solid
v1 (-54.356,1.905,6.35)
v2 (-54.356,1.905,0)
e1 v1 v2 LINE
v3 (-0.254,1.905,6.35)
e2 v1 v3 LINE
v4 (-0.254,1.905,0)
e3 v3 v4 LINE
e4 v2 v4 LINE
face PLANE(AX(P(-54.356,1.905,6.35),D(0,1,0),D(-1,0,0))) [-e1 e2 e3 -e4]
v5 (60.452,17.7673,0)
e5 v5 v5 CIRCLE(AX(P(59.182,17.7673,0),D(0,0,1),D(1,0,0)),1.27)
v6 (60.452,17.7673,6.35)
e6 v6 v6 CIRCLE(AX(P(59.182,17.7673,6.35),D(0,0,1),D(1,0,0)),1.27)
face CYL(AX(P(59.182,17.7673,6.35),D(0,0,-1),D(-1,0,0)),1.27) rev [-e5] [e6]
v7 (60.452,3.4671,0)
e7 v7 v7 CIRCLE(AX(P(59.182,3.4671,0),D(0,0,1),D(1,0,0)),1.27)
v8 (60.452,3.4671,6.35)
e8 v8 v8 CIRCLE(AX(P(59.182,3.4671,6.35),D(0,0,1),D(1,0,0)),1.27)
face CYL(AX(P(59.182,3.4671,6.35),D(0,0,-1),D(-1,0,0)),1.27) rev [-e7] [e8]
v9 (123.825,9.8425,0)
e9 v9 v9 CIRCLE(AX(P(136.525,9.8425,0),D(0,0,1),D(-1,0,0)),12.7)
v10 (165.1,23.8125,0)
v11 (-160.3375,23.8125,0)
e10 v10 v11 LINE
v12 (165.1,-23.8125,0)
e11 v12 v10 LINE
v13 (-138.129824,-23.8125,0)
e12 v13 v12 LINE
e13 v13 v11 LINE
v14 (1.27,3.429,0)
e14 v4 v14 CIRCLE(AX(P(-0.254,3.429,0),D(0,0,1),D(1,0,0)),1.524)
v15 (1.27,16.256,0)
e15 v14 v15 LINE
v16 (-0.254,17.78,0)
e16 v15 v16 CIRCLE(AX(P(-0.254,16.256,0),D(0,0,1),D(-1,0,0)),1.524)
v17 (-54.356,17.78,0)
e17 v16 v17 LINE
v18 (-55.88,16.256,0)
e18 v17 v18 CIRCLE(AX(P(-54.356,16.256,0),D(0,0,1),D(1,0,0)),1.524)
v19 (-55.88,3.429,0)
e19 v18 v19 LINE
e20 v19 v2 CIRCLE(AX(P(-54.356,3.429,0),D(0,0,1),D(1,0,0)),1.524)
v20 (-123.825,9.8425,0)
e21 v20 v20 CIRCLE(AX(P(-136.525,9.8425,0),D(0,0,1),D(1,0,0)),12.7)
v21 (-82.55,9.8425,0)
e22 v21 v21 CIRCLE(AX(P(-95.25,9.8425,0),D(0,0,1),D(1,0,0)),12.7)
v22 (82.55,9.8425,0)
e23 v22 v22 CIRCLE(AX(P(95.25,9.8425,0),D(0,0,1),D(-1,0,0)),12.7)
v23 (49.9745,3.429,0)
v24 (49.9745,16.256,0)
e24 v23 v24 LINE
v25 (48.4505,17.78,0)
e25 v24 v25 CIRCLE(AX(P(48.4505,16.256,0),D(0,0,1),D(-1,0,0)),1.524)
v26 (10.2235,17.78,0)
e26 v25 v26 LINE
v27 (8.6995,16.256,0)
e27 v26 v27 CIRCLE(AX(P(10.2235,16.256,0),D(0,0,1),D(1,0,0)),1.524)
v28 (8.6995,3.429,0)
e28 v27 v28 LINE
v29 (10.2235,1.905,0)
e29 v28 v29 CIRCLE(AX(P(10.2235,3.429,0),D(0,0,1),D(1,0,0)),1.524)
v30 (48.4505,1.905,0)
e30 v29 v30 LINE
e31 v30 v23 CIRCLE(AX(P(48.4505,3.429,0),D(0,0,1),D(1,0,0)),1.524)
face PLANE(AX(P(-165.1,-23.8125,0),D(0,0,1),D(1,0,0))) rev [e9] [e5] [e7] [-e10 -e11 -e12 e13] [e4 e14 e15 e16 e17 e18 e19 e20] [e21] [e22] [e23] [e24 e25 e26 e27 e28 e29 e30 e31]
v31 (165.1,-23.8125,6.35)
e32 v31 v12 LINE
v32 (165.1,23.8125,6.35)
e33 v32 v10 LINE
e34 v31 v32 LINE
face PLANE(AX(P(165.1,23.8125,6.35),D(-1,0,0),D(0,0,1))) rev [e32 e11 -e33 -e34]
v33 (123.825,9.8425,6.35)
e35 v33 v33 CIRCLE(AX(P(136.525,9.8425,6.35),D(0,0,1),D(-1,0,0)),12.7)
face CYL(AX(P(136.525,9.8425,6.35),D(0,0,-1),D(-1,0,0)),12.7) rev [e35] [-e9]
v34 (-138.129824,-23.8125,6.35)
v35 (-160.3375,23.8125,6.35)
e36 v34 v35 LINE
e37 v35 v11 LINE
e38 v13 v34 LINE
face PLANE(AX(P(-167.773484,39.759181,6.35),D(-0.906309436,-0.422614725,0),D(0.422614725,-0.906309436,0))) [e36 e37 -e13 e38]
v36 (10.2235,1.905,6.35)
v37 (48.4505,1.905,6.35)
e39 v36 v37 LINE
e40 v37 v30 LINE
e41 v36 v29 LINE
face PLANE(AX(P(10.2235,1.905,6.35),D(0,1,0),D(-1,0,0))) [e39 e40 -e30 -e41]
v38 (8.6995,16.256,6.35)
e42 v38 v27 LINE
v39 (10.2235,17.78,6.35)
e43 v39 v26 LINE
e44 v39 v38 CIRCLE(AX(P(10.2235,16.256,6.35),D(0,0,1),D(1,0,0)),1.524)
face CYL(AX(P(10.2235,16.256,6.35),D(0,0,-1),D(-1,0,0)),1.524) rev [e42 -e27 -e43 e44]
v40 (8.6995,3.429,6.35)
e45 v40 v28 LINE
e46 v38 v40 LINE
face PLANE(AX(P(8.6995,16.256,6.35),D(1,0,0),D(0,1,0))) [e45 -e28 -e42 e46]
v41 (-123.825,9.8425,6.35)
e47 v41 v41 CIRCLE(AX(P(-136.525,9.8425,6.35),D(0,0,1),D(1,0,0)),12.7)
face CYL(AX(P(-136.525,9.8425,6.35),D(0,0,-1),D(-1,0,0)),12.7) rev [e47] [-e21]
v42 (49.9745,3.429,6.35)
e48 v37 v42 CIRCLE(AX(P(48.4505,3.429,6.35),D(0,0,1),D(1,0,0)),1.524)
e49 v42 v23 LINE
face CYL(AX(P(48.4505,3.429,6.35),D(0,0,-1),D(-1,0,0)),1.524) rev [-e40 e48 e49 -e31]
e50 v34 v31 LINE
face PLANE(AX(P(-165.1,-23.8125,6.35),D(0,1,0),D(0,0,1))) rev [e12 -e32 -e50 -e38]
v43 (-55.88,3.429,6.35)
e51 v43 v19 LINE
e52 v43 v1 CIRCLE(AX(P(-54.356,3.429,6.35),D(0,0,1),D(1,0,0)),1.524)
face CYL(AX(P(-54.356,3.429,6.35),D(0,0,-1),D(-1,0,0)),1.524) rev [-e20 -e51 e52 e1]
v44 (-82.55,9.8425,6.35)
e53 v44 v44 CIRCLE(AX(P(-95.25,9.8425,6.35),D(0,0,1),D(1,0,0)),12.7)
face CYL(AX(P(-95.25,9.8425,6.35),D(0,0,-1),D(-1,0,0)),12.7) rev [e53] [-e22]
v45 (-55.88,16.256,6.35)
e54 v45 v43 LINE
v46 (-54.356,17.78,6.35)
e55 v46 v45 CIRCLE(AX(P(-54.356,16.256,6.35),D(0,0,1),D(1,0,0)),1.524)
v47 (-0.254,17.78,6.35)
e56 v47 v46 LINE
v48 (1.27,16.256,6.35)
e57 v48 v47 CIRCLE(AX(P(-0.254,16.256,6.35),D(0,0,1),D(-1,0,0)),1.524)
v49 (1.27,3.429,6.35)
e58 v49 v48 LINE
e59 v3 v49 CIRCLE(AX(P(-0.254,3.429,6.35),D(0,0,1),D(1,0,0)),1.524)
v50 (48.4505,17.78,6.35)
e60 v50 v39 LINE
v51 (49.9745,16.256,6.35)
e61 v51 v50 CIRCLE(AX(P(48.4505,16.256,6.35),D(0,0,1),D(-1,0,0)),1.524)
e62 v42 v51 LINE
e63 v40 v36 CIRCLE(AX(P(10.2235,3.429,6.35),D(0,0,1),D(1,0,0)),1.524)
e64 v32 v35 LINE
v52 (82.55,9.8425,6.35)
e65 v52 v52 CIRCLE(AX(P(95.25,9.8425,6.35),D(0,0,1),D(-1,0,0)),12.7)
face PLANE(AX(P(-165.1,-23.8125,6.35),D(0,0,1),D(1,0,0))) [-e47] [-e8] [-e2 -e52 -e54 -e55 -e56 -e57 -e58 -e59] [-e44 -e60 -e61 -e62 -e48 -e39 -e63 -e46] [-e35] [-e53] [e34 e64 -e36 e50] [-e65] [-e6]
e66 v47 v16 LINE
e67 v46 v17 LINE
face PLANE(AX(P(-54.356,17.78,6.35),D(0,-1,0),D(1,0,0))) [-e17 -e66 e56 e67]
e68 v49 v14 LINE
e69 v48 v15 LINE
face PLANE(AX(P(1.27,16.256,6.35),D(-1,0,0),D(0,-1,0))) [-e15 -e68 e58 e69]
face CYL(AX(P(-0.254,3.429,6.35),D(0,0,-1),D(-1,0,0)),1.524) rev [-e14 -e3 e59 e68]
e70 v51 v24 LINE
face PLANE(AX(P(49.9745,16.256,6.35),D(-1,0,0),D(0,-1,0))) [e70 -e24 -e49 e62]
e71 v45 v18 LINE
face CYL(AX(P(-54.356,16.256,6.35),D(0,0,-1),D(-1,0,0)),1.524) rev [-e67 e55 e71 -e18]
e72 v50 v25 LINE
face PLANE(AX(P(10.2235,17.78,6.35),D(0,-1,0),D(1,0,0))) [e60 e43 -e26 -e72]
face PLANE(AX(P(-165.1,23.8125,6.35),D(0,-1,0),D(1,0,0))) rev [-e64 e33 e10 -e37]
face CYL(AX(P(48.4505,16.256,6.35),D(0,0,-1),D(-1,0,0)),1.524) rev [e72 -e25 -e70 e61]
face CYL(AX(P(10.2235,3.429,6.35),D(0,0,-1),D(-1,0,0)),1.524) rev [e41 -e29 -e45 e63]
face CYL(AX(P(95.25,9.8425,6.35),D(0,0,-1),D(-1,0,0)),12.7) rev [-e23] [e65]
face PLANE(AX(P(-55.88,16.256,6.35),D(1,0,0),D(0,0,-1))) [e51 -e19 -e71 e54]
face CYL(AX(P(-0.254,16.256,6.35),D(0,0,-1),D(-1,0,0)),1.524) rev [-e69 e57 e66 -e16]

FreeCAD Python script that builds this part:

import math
import FreeCAD as App
import Part
import Sketcher

V = App.Vector
Q = App.Units.Quantity


def add_polygon(sketch, points):
    """Adds a closed chain of lines whose ends are joined by coincident constraints."""
    first, n = sketch.GeometryCount, len(points)
    for a, b in zip(points, points[1:] + points[:1]):
        sketch.addGeometry(Part.LineSegment(App.Vector(*a, 0), App.Vector(*b, 0)), False)
    for i in range(n):
        sketch.addConstraint(Sketcher.Constraint("Coincident", first + i, 2, first + (i + 1) % n, 1))

doc = App.newDocument("Part")
params = doc.addObject("Spreadsheet::Sheet", "Params")
for row, (alias, value) in enumerate([
    ("sketch1_diameter", "1 in"),
    ("sketch1_diameter2", "0.1 in"),
    ("sketch1_width", "13 in"),
    ("sketch1_radius", "0.06 in"),
    ("sketch1_width2", "2.13 in"),
    ("pad1_length", "0.25 in"),
], start=1):
    params.set(f"A{row}", alias)
    params.set(f"B{row}", "=" + value)
    params.setAlias(f"B{row}", alias)

body = doc.addObject("PartDesign::Body", "Body")

# Sketch on XY plane
sketch1 = body.newObject("Sketcher::SketchObject", "Sketch")
sketch1.AttachmentSupport = (doc.getObject("XY_Plane"), [""])
sketch1.MapMode = "FlatFace"
add_polygon(sketch1, [(-165.1, 23.8), (-165.1, -23.8), (165.1, -23.8), (165.1, 23.8)])  # lines 0-3
sketch1.addGeometry(Part.Circle(V(59.2, 3.5, 0), V(0, 0, 1), 1.3), False)  # 4
sketch1.addGeometry(Part.Circle(V(-136.5, 9.8, 0), V(0, 0, 1), 12.7), False)  # 5
sketch1.addGeometry(Part.Circle(V(-95.2, 9.8, 0), V(0, 0, 1), 12.7), False)  # 6
sketch1.addGeometry(Part.ArcOfCircle(Part.Circle(V(-54.4, 16.3, 0), V(0, 0, 1), 1.5), math.radians(90), math.radians(180)), False)  # 7
sketch1.addGeometry(Part.LineSegment(V(-54.4, 17.8, 0), V(-0.3, 17.8, 0)), False)  # 8
sketch1.addGeometry(Part.ArcOfCircle(Part.Circle(V(-0.3, 16.3, 0), V(0, 0, 1), 1.5), math.radians(0), math.radians(90)), False)  # 9
sketch1.addGeometry(Part.LineSegment(V(1.3, 16.3, 0), V(1.3, 3.4, 0)), False)  # 10
sketch1.addGeometry(Part.ArcOfCircle(Part.Circle(V(-0.3, 3.4, 0), V(0, 0, 1), 1.5), math.radians(-90), math.radians(0)), False)  # 11
sketch1.addGeometry(Part.LineSegment(V(-0.3, 1.9, 0), V(-54.4, 1.9, 0)), False)  # 12
sketch1.addGeometry(Part.ArcOfCircle(Part.Circle(V(-54.4, 3.4, 0), V(0, 0, 1), 1.5), math.radians(180), math.radians(270)), False)  # 13
sketch1.addGeometry(Part.LineSegment(V(-55.9, 3.4, 0), V(-55.9, 16.3, 0)), False)  # 14
sketch1.addGeometry(Part.ArcOfCircle(Part.Circle(V(10.2, 16.3, 0), V(0, 0, 1), 1.5), math.radians(90), math.radians(180)), False)  # 15
sketch1.addGeometry(Part.LineSegment(V(10.2, 17.8, 0), V(48.5, 17.8, 0)), False)  # 16
sketch1.addGeometry(Part.ArcOfCircle(Part.Circle(V(48.5, 16.3, 0), V(0, 0, 1), 1.5), math.radians(0), math.radians(90)), False)  # 17
sketch1.addGeometry(Part.LineSegment(V(50, 16.3, 0), V(50, 3.4, 0)), False)  # 18
sketch1.addGeometry(Part.ArcOfCircle(Part.Circle(V(48.5, 3.4, 0), V(0, 0, 1), 1.5), math.radians(-90), math.radians(0)), False)  # 19
sketch1.addGeometry(Part.LineSegment(V(48.5, 1.9, 0), V(10.2, 1.9, 0)), False)  # 20
sketch1.addGeometry(Part.ArcOfCircle(Part.Circle(V(10.2, 3.4, 0), V(0, 0, 1), 1.5), math.radians(180), math.radians(270)), False)  # 21
sketch1.addGeometry(Part.LineSegment(V(8.7, 3.4, 0), V(8.7, 16.3, 0)), False)  # 22
sketch1.addGeometry(Part.Circle(V(95.2, 9.8, 0), V(0, 0, 1), 12.7), False)  # 23
sketch1.addGeometry(Part.Circle(V(136.5, 9.8, 0), V(0, 0, 1), 12.7), False)  # 24
sketch1.addGeometry(Part.Circle(V(59.2, 17.8, 0), V(0, 0, 1), 1.3), False)  # 25
sketch1.addConstraint([
    Sketcher.Constraint("Tangent", 7, 1, 8, 1),
    Sketcher.Constraint("Tangent", 8, 2, 9, 2),
    Sketcher.Constraint("Tangent", 9, 1, 10, 1),
    Sketcher.Constraint("Tangent", 10, 2, 11, 2),
    Sketcher.Constraint("Tangent", 11, 1, 12, 1),
    Sketcher.Constraint("Tangent", 12, 2, 13, 2),
    Sketcher.Constraint("Tangent", 13, 1, 14, 1),
    Sketcher.Constraint("Tangent", 14, 2, 7, 2),
    Sketcher.Constraint("Tangent", 15, 1, 16, 1),
    Sketcher.Constraint("Tangent", 16, 2, 17, 2),
    Sketcher.Constraint("Tangent", 17, 1, 18, 1),
    Sketcher.Constraint("Tangent", 18, 2, 19, 2),
    Sketcher.Constraint("Tangent", 19, 1, 20, 1),
    Sketcher.Constraint("Tangent", 20, 2, 21, 2),
    Sketcher.Constraint("Tangent", 21, 1, 22, 1),
    Sketcher.Constraint("Tangent", 22, 2, 15, 2),
    Sketcher.Constraint("Vertical", 0),
    Sketcher.Constraint("Horizontal", 1),
    Sketcher.Constraint("Vertical", 2),
    Sketcher.Constraint("Horizontal", 3),
    Sketcher.Constraint("Horizontal", 8),
    Sketcher.Constraint("Vertical", 10),
    Sketcher.Constraint("Horizontal", 12),
    Sketcher.Constraint("Vertical", 14),
    Sketcher.Constraint("Horizontal", 16),
    Sketcher.Constraint("Vertical", 18),
    Sketcher.Constraint("Horizontal", 20),
    Sketcher.Constraint("Vertical", 22),
    Sketcher.Constraint("Equal", 5, 6),
    Sketcher.Constraint("Equal", 7, 9),
    Sketcher.Constraint("Equal", 9, 11),
    Sketcher.Constraint("Equal", 11, 13),
    Sketcher.Constraint("Equal", 13, 15),
    Sketcher.Constraint("Equal", 15, 17),
    Sketcher.Constraint("Equal", 17, 19),
    Sketcher.Constraint("Equal", 19, 21),
    Sketcher.Constraint("Equal", 6, 23),
    Sketcher.Constraint("Equal", 23, 24),
    Sketcher.Constraint("Equal", 4, 25),
    Sketcher.Constraint("Symmetric", 0, 2, 2, 2, -1, 1),
    Sketcher.Constraint("Symmetric", 6, 3, 23, 3, -2),
    Sketcher.Constraint("Symmetric", 5, 3, 24, 3, -2),
    Sketcher.Constraint("Horizontal", 5, 3, 6, 3),
    Sketcher.Constraint("Horizontal", 9, 3, 15, 3),
    Sketcher.Constraint("Horizontal", 13, 3, 19, 3),
    Sketcher.Constraint("Vertical", 4, 3, 25, 3),
    Sketcher.Constraint("Diameter", 5, Q("1 in")),
    Sketcher.Constraint("Diameter", 4, Q("0.1 in")),
    Sketcher.Constraint("DistanceX", 1, 1, 1, 2, Q("13 in")),
    Sketcher.Constraint("Radius", 7, Q("0.06 in")),
    Sketcher.Constraint("DistanceX", 8, 1, 8, 2, Q("2.13 in")),
    Sketcher.Constraint("DistanceY", -1, 1, 7, 1, Q("0.7 in")),
    Sketcher.Constraint("DistanceX", 13, 1, -1, 1, Q("2.2 in")),
    Sketcher.Constraint("DistanceX", 16, 1, 16, 2, Q("1.505 in")),
    Sketcher.Constraint("DistanceY", 0, 2, 0, 1, Q("1.875 in")),
    Sketcher.Constraint("DistanceY", 10, 2, 10, 1, Q("0.505 in")),
    Sketcher.Constraint("DistanceX", -1, 1, 4, 3, Q("2.33 in")),
    Sketcher.Constraint("DistanceX", 6, 3, -1, 1, Q("3.75 in")),
    Sketcher.Constraint("DistanceY", 24, 3, 2, 2, Q("0.55 in")),
    Sketcher.Constraint("DistanceX", 5, 3, -1, 1, Q("5.375 in")),
    Sketcher.Constraint("DistanceY", 4, 3, 5, 3, Q("0.251 in")),
    Sketcher.Constraint("DistanceY", 4, 3, 25, 3, Q("0.563 in")),
    Sketcher.Constraint("DistanceX", -1, 1, 15, 3, Q("0.4025 in")),
])
sketch1.setExpression("Constraints[50]", "Params.sketch1_diameter")
sketch1.setExpression("Constraints[51]", "Params.sketch1_diameter2")
sketch1.setExpression("Constraints[52]", "Params.sketch1_width")
sketch1.setExpression("Constraints[53]", "Params.sketch1_radius")
sketch1.setExpression("Constraints[54]", "Params.sketch1_width2")
pad1 = body.newObject("PartDesign::Pad", "Pad")
pad1.Profile = sketch1
pad1.setExpression("Length", "Params.pad1_length")

# Sketch on XY plane
sketch2 = body.newObject("Sketcher::SketchObject", "Sketch001")
sketch2.AttachmentSupport = (doc.getObject("XY_Plane"), [""])
sketch2.MapMode = "FlatFace"
add_polygon(sketch2, [(-168, 40), (-168, -38), (-131, -38)])  # lines 0-2
sketch2.addConstraint([
    Sketcher.Constraint("Vertical", 0),
    Sketcher.Constraint("Horizontal", 1),
    Sketcher.Constraint("DistanceX", 1, 1, 1, 2, 36.328733),
    Sketcher.Constraint("DistanceY", 0, 2, 0, 1, 77.908014),
    Sketcher.Constraint("DistanceX", 1, 2, -1, 1, 131.44475),
    Sketcher.Constraint("DistanceY", -1, 1, 2, 2, 39.759181),
])
pocket1 = body.newObject("PartDesign::Pocket", "Pocket")
pocket1.Profile = sketch2
pocket1.Type = "ThroughAll"
pocket1.Reversed = True

doc.recompute()
